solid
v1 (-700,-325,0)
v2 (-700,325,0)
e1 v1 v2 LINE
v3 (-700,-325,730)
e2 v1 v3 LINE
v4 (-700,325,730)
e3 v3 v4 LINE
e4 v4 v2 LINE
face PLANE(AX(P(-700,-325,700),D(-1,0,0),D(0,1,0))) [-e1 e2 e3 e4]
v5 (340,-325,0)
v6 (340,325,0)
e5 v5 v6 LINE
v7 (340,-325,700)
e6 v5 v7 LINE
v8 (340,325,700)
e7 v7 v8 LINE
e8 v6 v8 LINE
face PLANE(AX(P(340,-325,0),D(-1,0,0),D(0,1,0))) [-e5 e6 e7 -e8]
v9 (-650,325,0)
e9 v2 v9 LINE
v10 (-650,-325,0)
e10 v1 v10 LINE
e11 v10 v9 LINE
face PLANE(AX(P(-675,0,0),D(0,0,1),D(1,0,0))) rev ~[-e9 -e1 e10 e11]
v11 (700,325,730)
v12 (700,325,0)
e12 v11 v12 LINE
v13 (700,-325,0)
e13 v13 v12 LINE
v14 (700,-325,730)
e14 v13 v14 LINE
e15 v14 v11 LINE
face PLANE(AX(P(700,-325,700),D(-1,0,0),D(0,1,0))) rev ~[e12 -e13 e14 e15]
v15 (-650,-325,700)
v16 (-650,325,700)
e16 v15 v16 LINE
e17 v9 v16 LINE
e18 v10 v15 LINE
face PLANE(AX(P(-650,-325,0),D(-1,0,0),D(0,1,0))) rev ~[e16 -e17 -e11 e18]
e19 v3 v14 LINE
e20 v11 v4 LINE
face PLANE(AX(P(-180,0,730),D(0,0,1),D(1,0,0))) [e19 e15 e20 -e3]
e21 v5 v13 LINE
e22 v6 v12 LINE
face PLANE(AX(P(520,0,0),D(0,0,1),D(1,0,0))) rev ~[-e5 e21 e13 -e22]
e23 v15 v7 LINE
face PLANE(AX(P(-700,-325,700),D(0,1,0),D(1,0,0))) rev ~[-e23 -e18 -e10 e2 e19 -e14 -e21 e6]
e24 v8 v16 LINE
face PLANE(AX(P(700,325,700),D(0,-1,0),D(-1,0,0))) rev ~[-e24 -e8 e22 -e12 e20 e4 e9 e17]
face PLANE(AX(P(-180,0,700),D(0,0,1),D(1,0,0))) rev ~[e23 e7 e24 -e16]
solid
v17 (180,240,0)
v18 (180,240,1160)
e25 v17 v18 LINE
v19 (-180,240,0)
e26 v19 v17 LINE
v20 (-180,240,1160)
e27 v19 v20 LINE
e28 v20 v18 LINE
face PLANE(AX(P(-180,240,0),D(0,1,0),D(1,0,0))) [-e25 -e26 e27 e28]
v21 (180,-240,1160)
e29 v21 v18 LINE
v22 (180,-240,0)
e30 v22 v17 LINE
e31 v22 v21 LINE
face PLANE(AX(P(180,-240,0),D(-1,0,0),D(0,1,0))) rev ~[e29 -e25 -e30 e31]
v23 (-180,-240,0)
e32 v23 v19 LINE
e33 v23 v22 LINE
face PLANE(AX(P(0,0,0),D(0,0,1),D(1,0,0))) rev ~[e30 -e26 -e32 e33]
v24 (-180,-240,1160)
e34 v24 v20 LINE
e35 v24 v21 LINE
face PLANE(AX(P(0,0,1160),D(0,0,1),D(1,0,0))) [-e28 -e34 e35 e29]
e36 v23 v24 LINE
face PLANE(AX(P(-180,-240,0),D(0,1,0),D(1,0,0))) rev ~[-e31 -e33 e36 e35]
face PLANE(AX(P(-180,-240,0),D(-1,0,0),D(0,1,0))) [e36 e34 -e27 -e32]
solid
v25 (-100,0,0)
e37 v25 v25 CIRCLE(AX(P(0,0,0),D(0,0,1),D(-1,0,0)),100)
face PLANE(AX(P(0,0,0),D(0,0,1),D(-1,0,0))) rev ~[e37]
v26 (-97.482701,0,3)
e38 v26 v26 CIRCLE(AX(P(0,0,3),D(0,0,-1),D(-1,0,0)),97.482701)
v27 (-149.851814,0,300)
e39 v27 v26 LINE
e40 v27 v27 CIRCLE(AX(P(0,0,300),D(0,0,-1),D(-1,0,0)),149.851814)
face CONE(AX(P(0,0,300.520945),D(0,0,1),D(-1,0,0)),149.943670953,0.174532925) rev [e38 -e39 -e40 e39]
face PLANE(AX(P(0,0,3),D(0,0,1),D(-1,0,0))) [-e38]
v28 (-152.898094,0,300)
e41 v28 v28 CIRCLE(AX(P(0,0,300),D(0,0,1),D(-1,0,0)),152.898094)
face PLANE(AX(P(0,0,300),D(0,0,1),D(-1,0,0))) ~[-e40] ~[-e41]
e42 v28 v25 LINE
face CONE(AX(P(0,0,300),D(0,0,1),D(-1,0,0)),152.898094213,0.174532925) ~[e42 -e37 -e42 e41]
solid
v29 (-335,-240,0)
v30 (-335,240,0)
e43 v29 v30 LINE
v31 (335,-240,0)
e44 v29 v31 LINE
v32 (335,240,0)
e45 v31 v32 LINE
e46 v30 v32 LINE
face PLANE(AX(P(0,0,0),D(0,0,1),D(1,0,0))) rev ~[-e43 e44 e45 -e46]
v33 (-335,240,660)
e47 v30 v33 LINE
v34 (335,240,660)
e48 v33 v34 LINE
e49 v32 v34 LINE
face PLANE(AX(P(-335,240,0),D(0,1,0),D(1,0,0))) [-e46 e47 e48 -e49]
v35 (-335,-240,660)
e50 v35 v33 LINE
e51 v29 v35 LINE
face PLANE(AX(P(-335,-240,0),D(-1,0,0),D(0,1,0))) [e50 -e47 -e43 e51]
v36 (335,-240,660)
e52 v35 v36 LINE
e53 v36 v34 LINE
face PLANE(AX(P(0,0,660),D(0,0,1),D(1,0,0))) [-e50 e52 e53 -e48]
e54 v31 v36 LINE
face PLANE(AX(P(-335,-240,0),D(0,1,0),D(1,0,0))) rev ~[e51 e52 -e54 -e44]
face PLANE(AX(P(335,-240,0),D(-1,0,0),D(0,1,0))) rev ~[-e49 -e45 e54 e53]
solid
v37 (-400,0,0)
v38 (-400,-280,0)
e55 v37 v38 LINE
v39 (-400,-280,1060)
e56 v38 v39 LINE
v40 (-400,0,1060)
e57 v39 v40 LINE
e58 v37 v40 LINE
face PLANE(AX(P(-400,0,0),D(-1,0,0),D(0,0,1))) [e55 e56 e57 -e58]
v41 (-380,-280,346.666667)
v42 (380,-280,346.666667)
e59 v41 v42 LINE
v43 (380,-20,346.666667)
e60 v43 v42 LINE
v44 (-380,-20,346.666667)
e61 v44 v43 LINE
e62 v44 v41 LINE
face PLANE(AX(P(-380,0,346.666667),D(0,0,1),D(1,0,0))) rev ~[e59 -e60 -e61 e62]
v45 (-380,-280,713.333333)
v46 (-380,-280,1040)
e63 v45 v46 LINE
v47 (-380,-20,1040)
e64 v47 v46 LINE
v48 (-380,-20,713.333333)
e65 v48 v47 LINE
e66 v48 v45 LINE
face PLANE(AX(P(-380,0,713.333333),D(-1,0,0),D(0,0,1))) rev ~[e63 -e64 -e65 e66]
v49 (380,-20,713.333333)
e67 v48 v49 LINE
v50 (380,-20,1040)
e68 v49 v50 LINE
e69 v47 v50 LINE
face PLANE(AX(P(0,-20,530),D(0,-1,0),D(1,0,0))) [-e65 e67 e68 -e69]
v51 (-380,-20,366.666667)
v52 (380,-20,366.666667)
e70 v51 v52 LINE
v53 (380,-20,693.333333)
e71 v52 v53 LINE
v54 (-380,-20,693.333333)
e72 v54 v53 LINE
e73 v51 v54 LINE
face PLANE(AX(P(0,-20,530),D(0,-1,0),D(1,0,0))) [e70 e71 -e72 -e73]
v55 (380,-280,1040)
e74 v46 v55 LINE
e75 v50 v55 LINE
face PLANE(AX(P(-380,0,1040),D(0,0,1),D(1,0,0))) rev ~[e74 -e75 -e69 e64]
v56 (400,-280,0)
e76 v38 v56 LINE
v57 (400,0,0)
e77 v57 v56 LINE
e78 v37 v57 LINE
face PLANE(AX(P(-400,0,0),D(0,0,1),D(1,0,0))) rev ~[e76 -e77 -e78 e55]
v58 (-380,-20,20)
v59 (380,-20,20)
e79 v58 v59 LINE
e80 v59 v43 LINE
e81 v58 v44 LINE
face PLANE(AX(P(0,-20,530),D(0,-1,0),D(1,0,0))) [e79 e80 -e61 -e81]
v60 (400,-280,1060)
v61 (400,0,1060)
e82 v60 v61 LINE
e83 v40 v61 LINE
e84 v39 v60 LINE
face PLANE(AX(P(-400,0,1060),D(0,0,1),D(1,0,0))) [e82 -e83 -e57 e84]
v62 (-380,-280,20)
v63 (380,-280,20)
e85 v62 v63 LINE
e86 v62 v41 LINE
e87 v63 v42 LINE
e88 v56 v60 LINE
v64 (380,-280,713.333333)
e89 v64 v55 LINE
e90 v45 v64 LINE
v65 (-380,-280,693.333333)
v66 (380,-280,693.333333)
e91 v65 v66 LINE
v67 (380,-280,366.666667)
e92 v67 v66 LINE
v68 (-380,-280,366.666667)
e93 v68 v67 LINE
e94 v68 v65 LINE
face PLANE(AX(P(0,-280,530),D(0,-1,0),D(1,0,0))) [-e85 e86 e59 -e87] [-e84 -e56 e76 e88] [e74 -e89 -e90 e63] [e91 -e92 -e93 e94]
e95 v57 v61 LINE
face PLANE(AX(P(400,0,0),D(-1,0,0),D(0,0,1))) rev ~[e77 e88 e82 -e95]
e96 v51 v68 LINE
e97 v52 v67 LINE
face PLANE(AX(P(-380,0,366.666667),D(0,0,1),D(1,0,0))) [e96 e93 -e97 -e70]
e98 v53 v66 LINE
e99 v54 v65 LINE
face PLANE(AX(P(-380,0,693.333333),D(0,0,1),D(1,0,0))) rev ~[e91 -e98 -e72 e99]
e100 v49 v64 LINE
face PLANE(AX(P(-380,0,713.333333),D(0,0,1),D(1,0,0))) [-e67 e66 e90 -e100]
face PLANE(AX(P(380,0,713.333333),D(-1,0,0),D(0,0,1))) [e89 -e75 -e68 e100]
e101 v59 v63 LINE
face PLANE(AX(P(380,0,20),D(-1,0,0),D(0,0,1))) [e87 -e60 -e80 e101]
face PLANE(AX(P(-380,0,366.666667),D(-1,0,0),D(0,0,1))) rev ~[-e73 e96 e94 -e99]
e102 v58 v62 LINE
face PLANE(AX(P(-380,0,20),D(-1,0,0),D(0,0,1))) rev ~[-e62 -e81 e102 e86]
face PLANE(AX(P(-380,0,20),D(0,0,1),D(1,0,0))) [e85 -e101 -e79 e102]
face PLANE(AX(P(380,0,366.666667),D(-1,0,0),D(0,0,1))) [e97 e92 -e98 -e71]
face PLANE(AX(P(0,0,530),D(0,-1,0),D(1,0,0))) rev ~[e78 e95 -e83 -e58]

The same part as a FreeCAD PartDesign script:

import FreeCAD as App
import Part
import Sketcher
Q = App.Units.Quantity


def faces_at(feature, points):
    """Names of the faces that lie closest to the given points."""
    faces = feature.Shape.Faces
    near = lambda p: min(range(len(faces)), key=lambda i: faces[i].distToShape(Part.Vertex(*p))[0])
    return sorted({f"Face{near(p) + 1}" for p in points})

doc = App.newDocument("Part")
body = doc.addObject("PartDesign::Body", "Body")

# Sketch on XY plane
sketch1 = body.newObject("Sketcher::SketchObject", "Sketch")
sketch1.AttachmentSupport = (doc.getObject("XY_Plane"), [""])
sketch1.MapMode = "FlatFace"
sketch1.addGeometry([
    Part.LineSegment(App.Vector(-335, 240, 0), App.Vector(-335, -240, 0)),
    Part.LineSegment(App.Vector(-335, -240, 0), App.Vector(335, -240, 0)),
    Part.LineSegment(App.Vector(335, -240, 0), App.Vector(335, 240, 0)),
    Part.LineSegment(App.Vector(335, 240, 0), App.Vector(-335, 240, 0)),
], False)
sketch1.addConstraint([
    Sketcher.Constraint("Coincident", 0, 2, 1, 1),
    Sketcher.Constraint("Coincident", 1, 2, 2, 1),
    Sketcher.Constraint("Coincident", 2, 2, 3, 1),
    Sketcher.Constraint("Coincident", 3, 2, 0, 1),
    Sketcher.Constraint("Vertical", 0),
    Sketcher.Constraint("Horizontal", 1),
    Sketcher.Constraint("Vertical", 2),
    Sketcher.Constraint("Horizontal", 3),
    Sketcher.Constraint("Symmetric", 0, 2, 2, 2, -1, 1),
    Sketcher.Constraint("DistanceX", 1, 1, 1, 2, Q("670 mm")),
    Sketcher.Constraint("DistanceY", 0, 2, 0, 1, Q("480 mm")),
])
pad1 = body.newObject("PartDesign::Pad", "Pad")
pad1.Profile = sketch1
pad1.Length = 660
body2 = doc.addObject("PartDesign::Body", "Body001")

# Sketch on XY plane
sketch2 = body2.newObject("Sketcher::SketchObject", "Sketch001")
sketch2.AttachmentSupport = (doc.getObject("XY_Plane001"), [""])
sketch2.MapMode = "FlatFace"
sketch2.addGeometry([
    Part.LineSegment(App.Vector(-180, 240, 0), App.Vector(-180, -240, 0)),
    Part.LineSegment(App.Vector(-180, -240, 0), App.Vector(180, -240, 0)),
    Part.LineSegment(App.Vector(180, -240, 0), App.Vector(180, 240, 0)),
    Part.LineSegment(App.Vector(180, 240, 0), App.Vector(-180, 240, 0)),
], False)
sketch2.addConstraint([
    Sketcher.Constraint("Coincident", 0, 2, 1, 1),
    Sketcher.Constraint("Coincident", 1, 2, 2, 1),
    Sketcher.Constraint("Coincident", 2, 2, 3, 1),
    Sketcher.Constraint("Coincident", 3, 2, 0, 1),
    Sketcher.Constraint("Vertical", 0),
    Sketcher.Constraint("Horizontal", 1),
    Sketcher.Constraint("Vertical", 2),
    Sketcher.Constraint("Horizontal", 3),
    Sketcher.Constraint("Symmetric", 0, 2, 2, 2, -1, 1),
    Sketcher.Constraint("DistanceX", 1, 1, 1, 2, Q("360 mm")),
    Sketcher.Constraint("DistanceY", 0, 2, 0, 1, Q("480 mm")),
])
pad2 = body2.newObject("PartDesign::Pad", "Pad001")
pad2.Profile = sketch2
pad2.Length = 1160
body3 = doc.addObject("PartDesign::Body", "Body002")

# Sketch on XY plane
sketch3 = body3.newObject("Sketcher::SketchObject", "Sketch002")
sketch3.AttachmentSupport = (doc.getObject("XY_Plane002"), [""])
sketch3.MapMode = "FlatFace"
sketch3.addGeometry([
    Part.LineSegment(App.Vector(340, 325, 0), App.Vector(340, -325, 0)),
    Part.LineSegment(App.Vector(340, -325, 0), App.Vector(700, -325, 0)),
    Part.LineSegment(App.Vector(700, -325, 0), App.Vector(700, 325, 0)),
    Part.LineSegment(App.Vector(700, 325, 0), App.Vector(340, 325, 0)),
], False)
sketch3.addConstraint([
    Sketcher.Constraint("Coincident", 0, 2, 1, 1),
    Sketcher.Constraint("Coincident", 1, 2, 2, 1),
    Sketcher.Constraint("Coincident", 2, 2, 3, 1),
    Sketcher.Constraint("Coincident", 3, 2, 0, 1),
    Sketcher.Constraint("Vertical", 0),
    Sketcher.Constraint("Horizontal", 1),
    Sketcher.Constraint("Vertical", 2),
    Sketcher.Constraint("Horizontal", 3),
    Sketcher.Constraint("DistanceX", 1, 1, 1, 2, Q("360 mm")),
    Sketcher.Constraint("DistanceY", 0, 2, 0, 1, Q("650 mm")),
    Sketcher.Constraint("DistanceX", -1, 1, 0, 2, Q("340 mm")),
    Sketcher.Constraint("DistanceY", 0, 2, -1, 1, Q("325 mm")),
])
pad3 = body3.newObject("PartDesign::Pad", "Pad002")
pad3.Profile = sketch3
pad3.Length = 700
body4 = doc.addObject("PartDesign::Body", "Body003")

# Sketch on XY plane
sketch4 = body4.newObject("Sketcher::SketchObject", "Sketch003")
sketch4.AttachmentSupport = (doc.getObject("XY_Plane003"), [""])
sketch4.MapMode = "FlatFace"
sketch4.addGeometry([
    Part.LineSegment(App.Vector(-700, 325, 0), App.Vector(-700, -325, 0)),
    Part.LineSegment(App.Vector(-700, -325, 0), App.Vector(-650, -325, 0)),
    Part.LineSegment(App.Vector(-650, -325, 0), App.Vector(-650, 325, 0)),
    Part.LineSegment(App.Vector(-650, 325, 0), App.Vector(-700, 325, 0)),
], False)
sketch4.addConstraint([
    Sketcher.Constraint("Coincident", 0, 2, 1, 1),
    Sketcher.Constraint("Coincident", 1, 2, 2, 1),
    Sketcher.Constraint("Coincident", 2, 2, 3, 1),
    Sketcher.Constraint("Coincident", 3, 2, 0, 1),
    Sketcher.Constraint("Vertical", 0),
    Sketcher.Constraint("Horizontal", 1),
    Sketcher.Constraint("Vertical", 2),
    Sketcher.Constraint("Horizontal", 3),
    Sketcher.Constraint("DistanceX", 1, 1, 1, 2, Q("50 mm")),
    Sketcher.Constraint("DistanceY", 0, 2, 0, 1, Q("650 mm")),
    Sketcher.Constraint("DistanceX", 0, 2, -1, 1, Q("700 mm")),
    Sketcher.Constraint("DistanceY", 0, 2, -1, 1, Q("325 mm")),
])
pad4 = body4.newObject("PartDesign::Pad", "Pad003")
pad4.Profile = sketch4
pad4.Length = 700
body3.AllowCompound = True
doc.recompute()

boolean = body3.newObject("PartDesign::Boolean", "Boolean")
boolean.Type = "Fuse"
boolean.addObjects([body4])

# Sketch on XY plane
sketch5 = body3.newObject("Sketcher::SketchObject", "Sketch004")
sketch5.AttachmentSupport = (doc.getObject("XY_Plane002"), [""])
sketch5.MapMode = "FlatFace"
sketch5.AttachmentOffset = App.Placement(App.Vector(0, 0, 700), App.Rotation())
sketch5.addGeometry([
    Part.LineSegment(App.Vector(-700, 325, 0), App.Vector(-700, -325, 0)),
    Part.LineSegment(App.Vector(-700, -325, 0), App.Vector(700, -325, 0)),
    Part.LineSegment(App.Vector(700, -325, 0), App.Vector(700, 325, 0)),
    Part.LineSegment(App.Vector(700, 325, 0), App.Vector(-700, 325, 0)),
], False)
sketch5.addConstraint([
    Sketcher.Constraint("Coincident", 0, 2, 1, 1),
    Sketcher.Constraint("Coincident", 1, 2, 2, 1),
    Sketcher.Constraint("Coincident", 2, 2, 3, 1),
    Sketcher.Constraint("Coincident", 3, 2, 0, 1),
    Sketcher.Constraint("Vertical", 0),
    Sketcher.Constraint("Horizontal", 1),
    Sketcher.Constraint("Vertical", 2),
    Sketcher.Constraint("Horizontal", 3),
    Sketcher.Constraint("Symmetric", 0, 2, 2, 2, -1, 1),
    Sketcher.Constraint("DistanceX", 1, 1, 1, 2, Q("1400 mm")),
    Sketcher.Constraint("DistanceY", 0, 2, 0, 1, Q("650 mm")),
])
pad5 = body3.newObject("PartDesign::Pad", "Pad004")
pad5.Profile = sketch5
pad5.Length = 30
body5 = doc.addObject("PartDesign::Body", "Body004")

# Sketch on XZ plane
sketch6 = body5.newObject("Sketcher::SketchObject", "Sketch005")
sketch6.AttachmentSupport = (doc.getObject("XZ_Plane004"), [""])
sketch6.MapMode = "FlatFace"
sketch6.addGeometry([
    Part.LineSegment(App.Vector(-400, 1060, 0), App.Vector(-400, 0, 0)),  # 0
    Part.LineSegment(App.Vector(-400, 0, 0), App.Vector(400, 0, 0)),  # 1
    Part.LineSegment(App.Vector(400, 0, 0), App.Vector(400, 1060, 0)),  # 2
    Part.LineSegment(App.Vector(400, 1060, 0), App.Vector(-400, 1060, 0)),  # 3
    Part.LineSegment(App.Vector(380, 20, 0), App.Vector(-380, 20, 0)),  # 4
    Part.LineSegment(App.Vector(-380, 20, 0), App.Vector(-380, 347, 0)),  # 5
    Part.LineSegment(App.Vector(-380, 347, 0), App.Vector(380, 347, 0)),  # 6
    Part.LineSegment(App.Vector(380, 347, 0), App.Vector(380, 20, 0)),  # 7
    Part.LineSegment(App.Vector(380, 367, 0), App.Vector(-380, 367, 0)),  # 8
    Part.LineSegment(App.Vector(-380, 367, 0), App.Vector(-380, 693, 0)),  # 9
    Part.LineSegment(App.Vector(-380, 693, 0), App.Vector(380, 693, 0)),  # 10
    Part.LineSegment(App.Vector(380, 693, 0), App.Vector(380, 367, 0)),  # 11
    Part.LineSegment(App.Vector(380, 713, 0), App.Vector(-380, 713, 0)),  # 12
    Part.LineSegment(App.Vector(-380, 713, 0), App.Vector(-380, 1040, 0)),  # 13
    Part.LineSegment(App.Vector(-380, 1040, 0), App.Vector(380, 1040, 0)),  # 14
    Part.LineSegment(App.Vector(380, 1040, 0), App.Vector(380, 713, 0)),  # 15
], False)
sketch6.addConstraint([
    Sketcher.Constraint("Coincident", 0, 2, 1, 1),
    Sketcher.Constraint("Coincident", 1, 2, 2, 1),
    Sketcher.Constraint("Coincident", 2, 2, 3, 1),
    Sketcher.Constraint("Coincident", 3, 2, 0, 1),
    Sketcher.Constraint("Coincident", 4, 2, 5, 1),
    Sketcher.Constraint("Coincident", 5, 2, 6, 1),
    Sketcher.Constraint("Coincident", 6, 2, 7, 1),
    Sketcher.Constraint("Coincident", 7, 2, 4, 1),
    Sketcher.Constraint("Coincident", 8, 2, 9, 1),
    Sketcher.Constraint("Coincident", 9, 2, 10, 1),
    Sketcher.Constraint("Coincident", 10, 2, 11, 1),
    Sketcher.Constraint("Coincident", 11, 2, 8, 1),
    Sketcher.Constraint("Coincident", 12, 2, 13, 1),
    Sketcher.Constraint("Coincident", 13, 2, 14, 1),
    Sketcher.Constraint("Coincident", 14, 2, 15, 1),
    Sketcher.Constraint("Coincident", 15, 2, 12, 1),
    Sketcher.Constraint("Vertical", 0),
    Sketcher.Constraint("Horizontal", 1),
    Sketcher.Constraint("Vertical", 2),
    Sketcher.Constraint("Horizontal", 3),
    Sketcher.Constraint("Horizontal", 4),
    Sketcher.Constraint("Vertical", 5),
    Sketcher.Constraint("Horizontal", 6),
    Sketcher.Constraint("Vertical", 7),
    Sketcher.Constraint("Horizontal", 8),
    Sketcher.Constraint("Vertical", 9),
    Sketcher.Constraint("Horizontal", 10),
    Sketcher.Constraint("Vertical", 11),
    Sketcher.Constraint("Horizontal", 12),
    Sketcher.Constraint("Vertical", 13),
    Sketcher.Constraint("Horizontal", 14),
    Sketcher.Constraint("Vertical", 15),
    Sketcher.Constraint("Symmetric", 0, 2, 1, 2, -1, 1),
    Sketcher.Constraint("Vertical", 5, 2, 8, 2),
    Sketcher.Constraint("Vertical", 7, 2, 10, 2),
    Sketcher.Constraint("Vertical", 9, 2, 12, 2),
    Sketcher.Constraint("Vertical", 11, 2, 14, 2),
    Sketcher.Constraint("Equal", 7, 9),
    Sketcher.Constraint("Equal", 11, 13),
    Sketcher.Constraint("DistanceX", 1, 1, 1, 2, Q("800 mm")),
    Sketcher.Constraint("DistanceX", 4, 2, 4, 1, Q("760 mm")),
    Sketcher.Constraint("DistanceY", 0, 2, 0, 1, Q("1060 mm")),
    Sketcher.Constraint("DistanceX", 4, 2, -1, 1, Q("380 mm")),
    Sketcher.Constraint("DistanceY", -1, 1, 4, 2, Q("20 mm")),
    Sketcher.Constraint("DistanceY", -1, 1, 13, 2, Q("1040 mm")),
    Sketcher.Constraint("DistanceY", 5, 2, 8, 2, Q("20 mm")),
    Sketcher.Constraint("DistanceY", 9, 2, 12, 2, Q("20 mm")),
])
pad6 = body5.newObject("PartDesign::Pad", "Pad005")
pad6.Profile = sketch6
pad6.Length = 280

# Sketch on XZ plane
sketch7 = body5.newObject("Sketcher::SketchObject", "Sketch006")
sketch7.AttachmentSupport = (doc.getObject("XZ_Plane004"), [""])
sketch7.MapMode = "FlatFace"
sketch7.addGeometry([
    Part.LineSegment(App.Vector(-400, 1060, 0), App.Vector(-400, 0, 0)),
    Part.LineSegment(App.Vector(-400, 0, 0), App.Vector(400, 0, 0)),
    Part.LineSegment(App.Vector(400, 0, 0), App.Vector(400, 1060, 0)),
    Part.LineSegment(App.Vector(400, 1060, 0), App.Vector(-400, 1060, 0)),
], False)
sketch7.addConstraint([
    Sketcher.Constraint("Coincident", 0, 2, 1, 1),
    Sketcher.Constraint("Coincident", 1, 2, 2, 1),
    Sketcher.Constraint("Coincident", 2, 2, 3, 1),
    Sketcher.Constraint("Coincident", 3, 2, 0, 1),
    Sketcher.Constraint("Vertical", 0),
    Sketcher.Constraint("Horizontal", 1),
    Sketcher.Constraint("Vertical", 2),
    Sketcher.Constraint("Horizontal", 3),
    Sketcher.Constraint("Symmetric", 0, 2, 1, 2, -1, 1),
    Sketcher.Constraint("DistanceX", 1, 1, 1, 2, Q("800 mm")),
    Sketcher.Constraint("DistanceY", 0, 2, 0, 1, Q("1060 mm")),
])
pad7 = body5.newObject("PartDesign::Pad", "Pad006")
pad7.Profile = sketch7
pad7.Length = 20
body6 = doc.addObject("PartDesign::Body", "Body005")

# Sketch on XZ plane
sketch8 = body6.newObject("Sketcher::SketchObject", "Sketch007")
sketch8.AttachmentSupport = (doc.getObject("XZ_Plane005"), [""])
sketch8.MapMode = "FlatFace"
sketch8.addGeometry([
    Part.LineSegment(App.Vector(0, 0, 0), App.Vector(0, 300, 0)),
    Part.LineSegment(App.Vector(0, 300, 0), App.Vector(-153, 300, 0)),
    Part.LineSegment(App.Vector(-153, 300, 0), App.Vector(-100, 0, 0)),
    Part.LineSegment(App.Vector(-100, 0, 0), App.Vector(0, 0, 0)),
], False)
sketch8.addConstraint([
    Sketcher.Constraint("Coincident", 0, 2, 1, 1),
    Sketcher.Constraint("Coincident", 1, 2, 2, 1),
    Sketcher.Constraint("Coincident", 2, 2, 3, 1),
    Sketcher.Constraint("Coincident", 3, 2, 0, 1),
    Sketcher.Constraint("Vertical", 0),
    Sketcher.Constraint("Horizontal", 1),
    Sketcher.Constraint("Horizontal", 3),
    Sketcher.Constraint("Coincident", 3, 2, -1, 1),
    Sketcher.Constraint("DistanceX", 3, 1, 3, 2, Q("100 mm")),
    Sketcher.Constraint("DistanceY", 0, 1, 0, 2, Q("300 mm")),
    Sketcher.Constraint("Angle", 2, Q("-80 deg")),
])
revolution = body6.newObject("PartDesign::Revolution", "Revolution")
revolution.Profile = sketch8
revolution.ReferenceAxis = (sketch8, ["V_Axis"])
revolution.Angle = 360
doc.recompute()

thickness = body6.newObject("PartDesign::Thickness", "Thickness")
thickness.Base = (revolution, faces_at(revolution, [(0, 0, 300)]))
thickness.Value = 3
thickness.Reversed = True
thickness.Join = "Arc"

doc.recompute()
